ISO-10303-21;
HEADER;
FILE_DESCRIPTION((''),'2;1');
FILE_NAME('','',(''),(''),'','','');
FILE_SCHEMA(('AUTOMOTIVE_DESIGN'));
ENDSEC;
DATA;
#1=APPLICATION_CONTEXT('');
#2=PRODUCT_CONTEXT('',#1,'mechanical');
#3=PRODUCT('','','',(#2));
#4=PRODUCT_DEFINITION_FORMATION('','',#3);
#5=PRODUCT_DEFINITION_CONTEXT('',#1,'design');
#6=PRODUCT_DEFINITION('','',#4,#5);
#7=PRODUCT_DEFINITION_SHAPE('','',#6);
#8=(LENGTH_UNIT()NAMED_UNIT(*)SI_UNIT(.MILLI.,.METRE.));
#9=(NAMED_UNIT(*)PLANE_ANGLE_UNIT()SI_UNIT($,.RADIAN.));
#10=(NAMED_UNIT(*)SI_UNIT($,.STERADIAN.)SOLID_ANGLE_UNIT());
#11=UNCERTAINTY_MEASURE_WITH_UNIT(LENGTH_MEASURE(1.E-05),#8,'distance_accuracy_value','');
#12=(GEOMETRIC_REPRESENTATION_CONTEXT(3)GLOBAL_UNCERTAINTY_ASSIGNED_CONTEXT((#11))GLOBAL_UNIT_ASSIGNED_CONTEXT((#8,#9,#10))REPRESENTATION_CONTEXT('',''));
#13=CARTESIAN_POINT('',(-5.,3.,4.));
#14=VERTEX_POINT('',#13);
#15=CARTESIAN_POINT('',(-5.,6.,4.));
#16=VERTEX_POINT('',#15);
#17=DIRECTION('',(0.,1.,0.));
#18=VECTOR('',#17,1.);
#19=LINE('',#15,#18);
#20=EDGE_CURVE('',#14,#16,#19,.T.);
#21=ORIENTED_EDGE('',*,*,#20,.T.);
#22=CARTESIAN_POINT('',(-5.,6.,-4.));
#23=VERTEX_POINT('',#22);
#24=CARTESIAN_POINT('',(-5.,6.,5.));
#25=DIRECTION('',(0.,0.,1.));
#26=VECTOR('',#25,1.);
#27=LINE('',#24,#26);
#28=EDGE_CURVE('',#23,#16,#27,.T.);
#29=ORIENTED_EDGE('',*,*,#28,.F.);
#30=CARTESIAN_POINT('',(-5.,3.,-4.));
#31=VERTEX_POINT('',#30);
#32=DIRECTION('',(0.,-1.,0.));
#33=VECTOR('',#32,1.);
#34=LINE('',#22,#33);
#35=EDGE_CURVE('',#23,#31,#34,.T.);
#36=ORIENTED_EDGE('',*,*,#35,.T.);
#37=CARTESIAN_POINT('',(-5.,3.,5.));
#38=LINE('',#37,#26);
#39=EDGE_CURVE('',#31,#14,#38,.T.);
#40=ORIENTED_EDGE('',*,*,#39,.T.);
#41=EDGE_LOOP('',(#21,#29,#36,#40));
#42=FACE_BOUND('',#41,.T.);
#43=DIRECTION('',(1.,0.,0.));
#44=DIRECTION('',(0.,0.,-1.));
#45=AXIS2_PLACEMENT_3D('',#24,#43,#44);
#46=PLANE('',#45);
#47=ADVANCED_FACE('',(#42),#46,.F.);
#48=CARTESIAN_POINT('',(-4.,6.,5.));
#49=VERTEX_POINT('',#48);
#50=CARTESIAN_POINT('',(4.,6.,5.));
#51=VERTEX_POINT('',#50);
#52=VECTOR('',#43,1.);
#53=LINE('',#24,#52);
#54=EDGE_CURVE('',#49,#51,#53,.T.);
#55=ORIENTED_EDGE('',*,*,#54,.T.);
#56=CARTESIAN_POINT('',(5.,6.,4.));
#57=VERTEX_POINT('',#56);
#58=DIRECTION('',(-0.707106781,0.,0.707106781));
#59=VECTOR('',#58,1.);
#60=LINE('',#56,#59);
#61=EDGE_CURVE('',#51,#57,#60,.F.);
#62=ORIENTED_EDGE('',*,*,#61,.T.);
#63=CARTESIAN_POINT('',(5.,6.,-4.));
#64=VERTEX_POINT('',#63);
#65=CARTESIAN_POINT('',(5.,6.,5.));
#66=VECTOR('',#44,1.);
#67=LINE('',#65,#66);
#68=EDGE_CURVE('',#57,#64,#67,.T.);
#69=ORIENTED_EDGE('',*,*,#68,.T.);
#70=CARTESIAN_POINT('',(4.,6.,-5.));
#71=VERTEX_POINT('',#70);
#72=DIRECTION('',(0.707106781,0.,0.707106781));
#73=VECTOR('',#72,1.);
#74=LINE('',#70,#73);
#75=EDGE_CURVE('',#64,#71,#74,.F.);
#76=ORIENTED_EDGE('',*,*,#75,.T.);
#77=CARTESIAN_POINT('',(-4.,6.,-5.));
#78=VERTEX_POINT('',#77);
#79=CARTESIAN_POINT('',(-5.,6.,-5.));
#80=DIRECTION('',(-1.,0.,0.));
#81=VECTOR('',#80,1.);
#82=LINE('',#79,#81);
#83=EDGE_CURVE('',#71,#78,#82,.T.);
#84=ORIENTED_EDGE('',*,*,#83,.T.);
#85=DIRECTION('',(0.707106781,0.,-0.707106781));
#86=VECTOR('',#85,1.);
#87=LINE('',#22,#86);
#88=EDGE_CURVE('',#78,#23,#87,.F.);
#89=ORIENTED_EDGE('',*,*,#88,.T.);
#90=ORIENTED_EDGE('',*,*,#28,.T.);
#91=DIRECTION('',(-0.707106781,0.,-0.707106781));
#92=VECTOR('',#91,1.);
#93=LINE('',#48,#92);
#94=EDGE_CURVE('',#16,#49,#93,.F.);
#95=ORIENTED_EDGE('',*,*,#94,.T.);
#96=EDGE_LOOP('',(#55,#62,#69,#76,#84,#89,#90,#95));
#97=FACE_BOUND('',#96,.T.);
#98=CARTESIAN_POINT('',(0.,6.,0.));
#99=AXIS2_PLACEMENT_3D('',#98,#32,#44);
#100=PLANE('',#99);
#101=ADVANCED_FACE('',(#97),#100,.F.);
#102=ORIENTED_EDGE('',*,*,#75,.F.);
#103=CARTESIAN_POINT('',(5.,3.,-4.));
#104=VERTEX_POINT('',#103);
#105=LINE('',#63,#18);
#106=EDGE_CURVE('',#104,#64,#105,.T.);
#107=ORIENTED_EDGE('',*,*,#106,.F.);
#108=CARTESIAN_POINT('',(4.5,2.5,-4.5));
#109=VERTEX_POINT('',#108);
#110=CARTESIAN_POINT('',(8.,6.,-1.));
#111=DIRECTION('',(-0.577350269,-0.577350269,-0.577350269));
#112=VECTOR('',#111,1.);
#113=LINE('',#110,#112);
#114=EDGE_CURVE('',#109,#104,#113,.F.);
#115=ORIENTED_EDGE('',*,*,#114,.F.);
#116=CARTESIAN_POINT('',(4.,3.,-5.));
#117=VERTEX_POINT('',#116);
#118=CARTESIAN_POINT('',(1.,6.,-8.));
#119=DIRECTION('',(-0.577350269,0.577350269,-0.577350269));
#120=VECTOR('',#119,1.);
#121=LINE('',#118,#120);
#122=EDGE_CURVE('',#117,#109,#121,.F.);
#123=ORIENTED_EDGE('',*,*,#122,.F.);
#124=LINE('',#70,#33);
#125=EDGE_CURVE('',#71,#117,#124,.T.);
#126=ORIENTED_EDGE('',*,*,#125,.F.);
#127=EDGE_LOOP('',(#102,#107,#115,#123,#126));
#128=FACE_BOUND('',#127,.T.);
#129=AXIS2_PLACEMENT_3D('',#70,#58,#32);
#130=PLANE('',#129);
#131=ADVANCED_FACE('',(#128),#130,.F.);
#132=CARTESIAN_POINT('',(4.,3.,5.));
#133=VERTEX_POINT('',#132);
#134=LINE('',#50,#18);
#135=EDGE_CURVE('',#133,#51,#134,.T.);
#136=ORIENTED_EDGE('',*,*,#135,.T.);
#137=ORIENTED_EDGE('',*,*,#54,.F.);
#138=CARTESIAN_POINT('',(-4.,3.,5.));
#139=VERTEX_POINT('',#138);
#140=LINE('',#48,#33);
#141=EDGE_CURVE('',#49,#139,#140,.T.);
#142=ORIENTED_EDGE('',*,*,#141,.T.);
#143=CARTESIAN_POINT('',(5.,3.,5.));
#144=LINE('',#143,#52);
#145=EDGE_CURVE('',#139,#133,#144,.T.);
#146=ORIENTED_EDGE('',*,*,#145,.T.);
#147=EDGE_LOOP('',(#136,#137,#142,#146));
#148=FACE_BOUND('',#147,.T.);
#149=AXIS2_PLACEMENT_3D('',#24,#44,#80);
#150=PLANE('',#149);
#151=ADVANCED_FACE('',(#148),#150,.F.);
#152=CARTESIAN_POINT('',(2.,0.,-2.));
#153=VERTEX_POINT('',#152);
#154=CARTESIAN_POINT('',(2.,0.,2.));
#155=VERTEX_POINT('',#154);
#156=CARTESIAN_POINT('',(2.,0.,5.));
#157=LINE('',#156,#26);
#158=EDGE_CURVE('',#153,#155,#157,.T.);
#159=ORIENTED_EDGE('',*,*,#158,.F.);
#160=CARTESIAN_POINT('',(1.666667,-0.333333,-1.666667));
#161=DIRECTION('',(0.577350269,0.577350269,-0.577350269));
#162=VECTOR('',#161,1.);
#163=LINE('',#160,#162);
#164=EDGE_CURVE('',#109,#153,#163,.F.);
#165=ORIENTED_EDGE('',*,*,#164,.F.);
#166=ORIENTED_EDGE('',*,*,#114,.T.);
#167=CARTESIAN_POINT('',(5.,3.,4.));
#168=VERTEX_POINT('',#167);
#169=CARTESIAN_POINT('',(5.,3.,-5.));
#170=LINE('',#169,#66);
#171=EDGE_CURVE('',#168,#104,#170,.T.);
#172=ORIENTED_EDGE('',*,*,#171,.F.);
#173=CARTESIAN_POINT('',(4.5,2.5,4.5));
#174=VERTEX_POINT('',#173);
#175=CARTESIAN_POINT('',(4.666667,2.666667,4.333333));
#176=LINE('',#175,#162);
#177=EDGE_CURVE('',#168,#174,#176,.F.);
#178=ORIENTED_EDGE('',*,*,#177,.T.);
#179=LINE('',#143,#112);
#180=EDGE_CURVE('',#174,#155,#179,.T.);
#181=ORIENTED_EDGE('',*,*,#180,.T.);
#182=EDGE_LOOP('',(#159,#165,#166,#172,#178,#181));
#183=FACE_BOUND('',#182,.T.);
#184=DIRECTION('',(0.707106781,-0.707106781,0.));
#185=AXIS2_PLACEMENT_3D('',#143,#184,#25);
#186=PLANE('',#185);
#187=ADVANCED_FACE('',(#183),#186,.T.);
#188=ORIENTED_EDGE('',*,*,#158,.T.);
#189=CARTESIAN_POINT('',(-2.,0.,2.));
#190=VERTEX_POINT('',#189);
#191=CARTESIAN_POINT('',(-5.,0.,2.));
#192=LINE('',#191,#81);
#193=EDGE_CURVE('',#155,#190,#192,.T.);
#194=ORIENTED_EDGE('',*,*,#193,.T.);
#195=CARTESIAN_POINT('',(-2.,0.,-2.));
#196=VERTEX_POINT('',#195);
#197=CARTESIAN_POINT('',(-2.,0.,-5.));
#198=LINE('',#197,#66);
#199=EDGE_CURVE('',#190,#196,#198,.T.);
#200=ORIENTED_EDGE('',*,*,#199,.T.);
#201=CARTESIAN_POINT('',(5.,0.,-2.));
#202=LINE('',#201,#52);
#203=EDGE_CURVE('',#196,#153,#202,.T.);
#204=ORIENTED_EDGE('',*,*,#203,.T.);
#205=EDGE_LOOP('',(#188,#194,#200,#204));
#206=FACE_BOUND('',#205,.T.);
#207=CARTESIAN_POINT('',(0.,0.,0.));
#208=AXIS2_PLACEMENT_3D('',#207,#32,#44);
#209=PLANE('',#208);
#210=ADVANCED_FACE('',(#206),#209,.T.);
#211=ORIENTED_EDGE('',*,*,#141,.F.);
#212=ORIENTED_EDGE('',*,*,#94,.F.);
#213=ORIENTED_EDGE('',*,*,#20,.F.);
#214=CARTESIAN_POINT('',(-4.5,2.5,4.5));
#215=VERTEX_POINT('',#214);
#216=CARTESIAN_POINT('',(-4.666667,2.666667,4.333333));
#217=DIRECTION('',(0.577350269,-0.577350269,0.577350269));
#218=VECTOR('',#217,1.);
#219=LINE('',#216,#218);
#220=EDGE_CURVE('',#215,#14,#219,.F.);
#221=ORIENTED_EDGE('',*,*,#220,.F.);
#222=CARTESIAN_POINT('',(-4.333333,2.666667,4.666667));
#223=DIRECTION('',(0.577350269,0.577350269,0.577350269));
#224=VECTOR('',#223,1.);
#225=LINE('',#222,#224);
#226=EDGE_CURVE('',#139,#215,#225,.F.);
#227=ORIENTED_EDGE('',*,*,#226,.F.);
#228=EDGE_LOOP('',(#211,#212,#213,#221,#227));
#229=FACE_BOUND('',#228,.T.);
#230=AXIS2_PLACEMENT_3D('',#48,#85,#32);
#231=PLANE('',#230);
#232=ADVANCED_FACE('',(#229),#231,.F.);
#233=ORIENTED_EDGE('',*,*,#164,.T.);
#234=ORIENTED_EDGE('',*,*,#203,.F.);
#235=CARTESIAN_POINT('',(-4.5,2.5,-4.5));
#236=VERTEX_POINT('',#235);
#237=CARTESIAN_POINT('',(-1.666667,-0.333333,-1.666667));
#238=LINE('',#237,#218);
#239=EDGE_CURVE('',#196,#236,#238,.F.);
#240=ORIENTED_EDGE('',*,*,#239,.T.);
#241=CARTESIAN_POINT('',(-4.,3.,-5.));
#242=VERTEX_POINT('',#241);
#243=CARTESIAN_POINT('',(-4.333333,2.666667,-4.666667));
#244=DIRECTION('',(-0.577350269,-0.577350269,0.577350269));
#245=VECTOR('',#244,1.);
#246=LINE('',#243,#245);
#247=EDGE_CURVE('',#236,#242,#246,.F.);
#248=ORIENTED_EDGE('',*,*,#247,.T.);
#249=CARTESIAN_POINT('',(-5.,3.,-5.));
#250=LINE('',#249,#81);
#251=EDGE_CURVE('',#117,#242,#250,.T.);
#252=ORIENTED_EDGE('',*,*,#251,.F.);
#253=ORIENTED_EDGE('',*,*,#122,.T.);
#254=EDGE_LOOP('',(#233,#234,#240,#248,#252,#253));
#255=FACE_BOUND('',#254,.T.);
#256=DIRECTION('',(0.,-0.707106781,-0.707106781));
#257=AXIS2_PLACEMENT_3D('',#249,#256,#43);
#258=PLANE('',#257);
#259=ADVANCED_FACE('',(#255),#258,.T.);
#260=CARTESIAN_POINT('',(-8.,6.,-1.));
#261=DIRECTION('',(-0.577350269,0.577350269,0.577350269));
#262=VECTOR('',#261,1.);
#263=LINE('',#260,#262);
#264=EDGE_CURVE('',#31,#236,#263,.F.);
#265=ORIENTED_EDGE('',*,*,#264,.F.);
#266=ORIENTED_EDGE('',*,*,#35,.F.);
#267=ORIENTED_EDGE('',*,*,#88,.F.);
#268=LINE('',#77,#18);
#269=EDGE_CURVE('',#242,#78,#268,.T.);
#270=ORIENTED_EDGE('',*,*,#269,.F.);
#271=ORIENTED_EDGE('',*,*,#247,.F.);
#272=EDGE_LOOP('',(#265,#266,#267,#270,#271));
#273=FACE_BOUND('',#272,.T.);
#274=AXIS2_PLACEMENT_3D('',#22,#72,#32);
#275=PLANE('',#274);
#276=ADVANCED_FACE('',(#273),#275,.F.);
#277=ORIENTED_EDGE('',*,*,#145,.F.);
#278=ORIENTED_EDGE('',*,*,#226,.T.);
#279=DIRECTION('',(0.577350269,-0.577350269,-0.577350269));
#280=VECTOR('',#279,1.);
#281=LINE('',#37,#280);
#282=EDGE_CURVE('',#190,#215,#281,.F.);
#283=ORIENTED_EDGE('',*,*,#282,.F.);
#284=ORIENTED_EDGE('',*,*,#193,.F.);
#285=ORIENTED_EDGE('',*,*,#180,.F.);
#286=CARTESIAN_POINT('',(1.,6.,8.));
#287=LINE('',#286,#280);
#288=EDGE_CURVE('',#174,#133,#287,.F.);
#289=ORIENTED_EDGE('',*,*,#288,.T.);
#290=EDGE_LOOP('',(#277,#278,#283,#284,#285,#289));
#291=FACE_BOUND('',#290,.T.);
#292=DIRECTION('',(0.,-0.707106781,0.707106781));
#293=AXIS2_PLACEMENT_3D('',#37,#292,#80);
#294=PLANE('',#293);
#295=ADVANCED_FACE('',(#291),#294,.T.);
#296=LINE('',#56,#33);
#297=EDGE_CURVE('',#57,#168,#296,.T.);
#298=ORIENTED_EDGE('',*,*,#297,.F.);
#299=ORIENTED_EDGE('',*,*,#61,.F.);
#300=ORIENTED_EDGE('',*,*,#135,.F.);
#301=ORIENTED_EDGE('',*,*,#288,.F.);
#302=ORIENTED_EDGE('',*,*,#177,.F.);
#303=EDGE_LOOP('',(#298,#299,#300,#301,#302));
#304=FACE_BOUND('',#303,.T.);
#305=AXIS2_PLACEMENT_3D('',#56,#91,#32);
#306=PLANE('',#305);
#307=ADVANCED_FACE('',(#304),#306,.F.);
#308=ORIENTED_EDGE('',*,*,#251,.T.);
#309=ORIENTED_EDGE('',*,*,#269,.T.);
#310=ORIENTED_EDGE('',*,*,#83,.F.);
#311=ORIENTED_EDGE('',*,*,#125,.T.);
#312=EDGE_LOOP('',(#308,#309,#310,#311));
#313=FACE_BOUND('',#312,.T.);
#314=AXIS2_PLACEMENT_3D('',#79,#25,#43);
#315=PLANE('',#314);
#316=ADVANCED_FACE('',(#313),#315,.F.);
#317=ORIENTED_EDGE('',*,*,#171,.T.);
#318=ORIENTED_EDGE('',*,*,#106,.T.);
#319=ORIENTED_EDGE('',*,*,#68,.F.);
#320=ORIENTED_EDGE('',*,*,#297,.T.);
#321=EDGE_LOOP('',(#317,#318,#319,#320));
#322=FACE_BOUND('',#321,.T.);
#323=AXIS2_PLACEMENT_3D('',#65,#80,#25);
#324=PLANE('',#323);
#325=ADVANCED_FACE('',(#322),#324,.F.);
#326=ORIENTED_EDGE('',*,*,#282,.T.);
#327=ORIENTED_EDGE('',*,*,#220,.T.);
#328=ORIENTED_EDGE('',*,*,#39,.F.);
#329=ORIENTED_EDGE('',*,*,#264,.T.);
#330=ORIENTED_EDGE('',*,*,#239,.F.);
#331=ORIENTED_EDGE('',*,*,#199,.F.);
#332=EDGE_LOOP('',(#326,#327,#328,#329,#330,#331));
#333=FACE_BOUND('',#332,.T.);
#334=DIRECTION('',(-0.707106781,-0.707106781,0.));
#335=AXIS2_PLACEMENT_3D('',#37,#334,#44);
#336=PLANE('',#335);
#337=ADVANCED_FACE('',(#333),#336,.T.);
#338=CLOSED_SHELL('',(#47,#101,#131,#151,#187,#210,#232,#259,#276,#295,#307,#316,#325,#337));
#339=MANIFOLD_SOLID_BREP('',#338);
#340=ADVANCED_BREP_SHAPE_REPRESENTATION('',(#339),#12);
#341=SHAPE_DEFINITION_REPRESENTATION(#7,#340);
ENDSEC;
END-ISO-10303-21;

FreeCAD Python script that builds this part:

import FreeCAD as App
import Part
import Sketcher
Q = App.Units.Quantity


def edges_at(feature, points):
    """Names of the edges that pass closest to the given points."""
    edges = feature.Shape.Edges
    near = lambda p: min(range(len(edges)), key=lambda i: edges[i].distToShape(Part.Vertex(*p))[0])
    return sorted({f"Edge{near(p) + 1}" for p in points})


def add_polygon(sketch, points):
    """Adds a closed chain of lines whose ends are joined by coincident constraints."""
    first, n = sketch.GeometryCount, len(points)
    for a, b in zip(points, points[1:] + points[:1]):
        sketch.addGeometry(Part.LineSegment(App.Vector(*a, 0), App.Vector(*b, 0)), False)
    for i in range(n):
        sketch.addConstraint(Sketcher.Constraint("Coincident", first + i, 2, first + (i + 1) % n, 1))

doc = App.newDocument("Part")
body = doc.addObject("PartDesign::Body", "Body")

sketch1 = doc.addObject("Sketcher::SketchObject", "Sketch")
body.addObject(sketch1)
sketch1.AttachmentSupport = (doc.XZ_Plane, [""])
sketch1.MapMode = "FlatFace"
add_polygon(sketch1, [(-5, -5), (-5, 5), (5, 5), (5, -5)])
sketch1.addConstraint(Sketcher.Constraint("Vertical", 0))
sketch1.addConstraint(Sketcher.Constraint("Horizontal", 1))
sketch1.addConstraint(Sketcher.Constraint("Vertical", 2))
sketch1.addConstraint(Sketcher.Constraint("Horizontal", 3))
sketch1.addConstraint(Sketcher.Constraint("Symmetric", 0, 2, 2, 2, -1, 1))
sketch1.addConstraint(Sketcher.Constraint("Equal", 3, 0))
sketch1.addConstraint(Sketcher.Constraint("DistanceX", 1, 1, 1, 2, Q("10 mm")))
pad1 = doc.addObject("PartDesign::Pad", "Pad")
body.addObject(pad1)
pad1.Profile = sketch1
pad1.Length = 6
pad1.Reversed = True
doc.recompute()

chamfer = doc.addObject("PartDesign::Chamfer", "Chamfer")
body.addObject(chamfer)
chamfer.Base = (pad1, edges_at(pad1, [
    (0, 0, 5),
    (-5, 0, 0),
    (0, 0, -5),
    (5, 0, 0),
]))
chamfer.Size = 3
doc.recompute()

chamfer2 = doc.addObject("PartDesign::Chamfer", "Chamfer001")
body.addObject(chamfer2)
chamfer2.Base = (chamfer, edges_at(chamfer, [
    (5, 4.5, 5),
    (-5, 4.5, 5),
    (-5, 4.5, -5),
    (5, 4.5, -5),
]))
chamfer2.Size = 1

doc.recompute()
